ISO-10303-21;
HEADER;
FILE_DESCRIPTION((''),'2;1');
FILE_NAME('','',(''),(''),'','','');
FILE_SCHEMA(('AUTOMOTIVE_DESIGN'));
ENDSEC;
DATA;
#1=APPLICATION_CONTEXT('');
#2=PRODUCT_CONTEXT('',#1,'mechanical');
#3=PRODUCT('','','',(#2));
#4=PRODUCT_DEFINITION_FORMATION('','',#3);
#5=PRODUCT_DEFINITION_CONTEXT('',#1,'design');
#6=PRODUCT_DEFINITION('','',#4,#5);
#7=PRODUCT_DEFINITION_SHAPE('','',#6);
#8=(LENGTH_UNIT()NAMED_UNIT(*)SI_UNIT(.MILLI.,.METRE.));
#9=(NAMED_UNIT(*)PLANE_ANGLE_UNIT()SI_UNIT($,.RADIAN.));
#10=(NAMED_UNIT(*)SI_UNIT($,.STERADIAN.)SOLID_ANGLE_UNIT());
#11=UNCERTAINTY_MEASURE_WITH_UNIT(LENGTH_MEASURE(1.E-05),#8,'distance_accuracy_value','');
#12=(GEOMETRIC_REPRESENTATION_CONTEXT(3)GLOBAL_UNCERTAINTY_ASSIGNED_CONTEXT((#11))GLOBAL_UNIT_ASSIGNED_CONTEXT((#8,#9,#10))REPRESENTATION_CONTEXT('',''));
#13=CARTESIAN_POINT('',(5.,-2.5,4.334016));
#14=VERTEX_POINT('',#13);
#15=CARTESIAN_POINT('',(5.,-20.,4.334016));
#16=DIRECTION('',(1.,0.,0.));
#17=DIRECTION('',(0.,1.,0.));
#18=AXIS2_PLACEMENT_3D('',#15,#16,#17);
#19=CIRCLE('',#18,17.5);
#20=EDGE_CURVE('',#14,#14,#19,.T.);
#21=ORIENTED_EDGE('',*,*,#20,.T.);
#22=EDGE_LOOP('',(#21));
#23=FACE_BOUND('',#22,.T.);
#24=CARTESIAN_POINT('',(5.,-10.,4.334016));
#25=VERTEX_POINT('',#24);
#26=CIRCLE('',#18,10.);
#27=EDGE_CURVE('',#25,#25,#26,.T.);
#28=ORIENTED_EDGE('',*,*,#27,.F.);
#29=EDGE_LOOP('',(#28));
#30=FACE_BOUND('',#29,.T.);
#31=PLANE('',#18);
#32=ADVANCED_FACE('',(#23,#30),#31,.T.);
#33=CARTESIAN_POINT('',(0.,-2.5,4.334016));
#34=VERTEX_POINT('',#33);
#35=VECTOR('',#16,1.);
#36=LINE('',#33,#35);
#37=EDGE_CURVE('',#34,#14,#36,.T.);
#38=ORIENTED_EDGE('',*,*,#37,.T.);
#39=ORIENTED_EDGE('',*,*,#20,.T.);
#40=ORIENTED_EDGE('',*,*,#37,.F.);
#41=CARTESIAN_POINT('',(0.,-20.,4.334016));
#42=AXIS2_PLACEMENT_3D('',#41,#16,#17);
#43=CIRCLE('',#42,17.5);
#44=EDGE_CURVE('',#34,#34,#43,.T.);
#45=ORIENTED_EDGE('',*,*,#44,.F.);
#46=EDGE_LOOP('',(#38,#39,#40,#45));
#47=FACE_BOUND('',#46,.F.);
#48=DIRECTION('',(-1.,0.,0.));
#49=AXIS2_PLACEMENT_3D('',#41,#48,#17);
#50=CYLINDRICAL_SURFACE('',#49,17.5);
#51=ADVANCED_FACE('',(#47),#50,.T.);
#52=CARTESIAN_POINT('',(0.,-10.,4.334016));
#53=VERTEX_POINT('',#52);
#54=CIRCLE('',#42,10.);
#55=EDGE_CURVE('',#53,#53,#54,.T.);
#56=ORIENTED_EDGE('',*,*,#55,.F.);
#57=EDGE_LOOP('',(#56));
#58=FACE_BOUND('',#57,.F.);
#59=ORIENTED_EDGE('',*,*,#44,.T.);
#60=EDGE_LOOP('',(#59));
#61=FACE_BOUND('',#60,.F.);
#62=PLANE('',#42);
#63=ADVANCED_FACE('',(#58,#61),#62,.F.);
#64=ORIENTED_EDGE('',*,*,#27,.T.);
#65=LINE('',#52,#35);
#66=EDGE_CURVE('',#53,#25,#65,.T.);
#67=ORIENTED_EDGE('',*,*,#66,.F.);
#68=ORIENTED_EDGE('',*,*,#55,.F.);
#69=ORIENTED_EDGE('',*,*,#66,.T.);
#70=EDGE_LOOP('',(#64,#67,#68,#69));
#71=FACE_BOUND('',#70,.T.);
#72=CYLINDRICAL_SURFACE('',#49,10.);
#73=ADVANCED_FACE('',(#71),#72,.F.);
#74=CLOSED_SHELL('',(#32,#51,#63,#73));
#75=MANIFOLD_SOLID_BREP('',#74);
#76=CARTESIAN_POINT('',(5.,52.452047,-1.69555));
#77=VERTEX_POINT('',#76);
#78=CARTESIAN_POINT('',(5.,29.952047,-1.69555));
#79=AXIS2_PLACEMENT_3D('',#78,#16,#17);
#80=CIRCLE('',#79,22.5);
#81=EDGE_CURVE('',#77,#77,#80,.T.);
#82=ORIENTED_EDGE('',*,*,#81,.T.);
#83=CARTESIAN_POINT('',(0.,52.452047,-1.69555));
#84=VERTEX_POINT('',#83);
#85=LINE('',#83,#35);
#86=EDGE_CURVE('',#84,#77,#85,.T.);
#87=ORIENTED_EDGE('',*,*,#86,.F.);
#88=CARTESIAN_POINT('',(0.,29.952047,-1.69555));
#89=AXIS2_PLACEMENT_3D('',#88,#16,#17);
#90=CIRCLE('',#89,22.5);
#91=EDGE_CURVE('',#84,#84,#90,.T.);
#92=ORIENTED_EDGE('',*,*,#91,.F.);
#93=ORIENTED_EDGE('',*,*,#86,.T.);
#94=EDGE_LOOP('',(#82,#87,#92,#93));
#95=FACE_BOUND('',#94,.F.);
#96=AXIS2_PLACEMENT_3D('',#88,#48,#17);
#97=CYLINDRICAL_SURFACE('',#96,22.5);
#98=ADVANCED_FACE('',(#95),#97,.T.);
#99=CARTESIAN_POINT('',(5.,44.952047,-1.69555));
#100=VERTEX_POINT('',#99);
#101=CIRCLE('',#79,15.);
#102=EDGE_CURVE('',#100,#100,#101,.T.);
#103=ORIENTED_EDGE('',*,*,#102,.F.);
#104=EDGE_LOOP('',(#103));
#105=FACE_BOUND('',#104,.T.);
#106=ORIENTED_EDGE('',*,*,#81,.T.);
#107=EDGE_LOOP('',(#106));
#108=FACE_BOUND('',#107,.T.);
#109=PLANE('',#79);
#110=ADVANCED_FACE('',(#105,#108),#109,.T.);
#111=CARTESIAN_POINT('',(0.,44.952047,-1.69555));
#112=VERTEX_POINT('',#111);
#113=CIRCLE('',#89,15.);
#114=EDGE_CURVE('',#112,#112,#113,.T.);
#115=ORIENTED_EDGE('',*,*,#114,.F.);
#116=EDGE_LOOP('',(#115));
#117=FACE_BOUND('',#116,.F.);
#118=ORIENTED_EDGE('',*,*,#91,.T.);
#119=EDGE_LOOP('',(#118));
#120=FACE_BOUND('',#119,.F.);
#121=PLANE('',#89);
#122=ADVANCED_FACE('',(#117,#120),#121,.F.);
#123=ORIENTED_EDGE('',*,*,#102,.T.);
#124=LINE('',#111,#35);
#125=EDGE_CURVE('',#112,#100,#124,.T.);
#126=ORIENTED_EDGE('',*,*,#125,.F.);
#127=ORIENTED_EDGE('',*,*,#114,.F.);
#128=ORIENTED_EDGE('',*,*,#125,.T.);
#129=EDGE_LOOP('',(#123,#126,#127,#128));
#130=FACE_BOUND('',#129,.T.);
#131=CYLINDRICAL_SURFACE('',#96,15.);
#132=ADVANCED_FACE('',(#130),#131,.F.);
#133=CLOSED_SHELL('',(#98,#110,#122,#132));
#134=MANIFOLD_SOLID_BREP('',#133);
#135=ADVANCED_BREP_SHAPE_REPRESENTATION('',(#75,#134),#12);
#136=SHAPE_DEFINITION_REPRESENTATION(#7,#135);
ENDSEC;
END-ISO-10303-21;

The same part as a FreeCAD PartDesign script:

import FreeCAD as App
import Part
import Sketcher
from FreeCAD import Vector

doc = App.newDocument("Part")
body = doc.addObject("PartDesign::Body", "Body")
body.AllowCompound = True

sketch1 = doc.addObject("Sketcher::SketchObject", "Sketch")
body.addObject(sketch1)
sketch1.AttachmentSupport = (doc.YZ_Plane, [""])
sketch1.MapMode = "FlatFace"
sketch1.addGeometry(Part.Circle(Vector(-20, 4, 0), Vector(0, 0, 1), 18), False)
sketch1.addGeometry(Part.Circle(Vector(-20, 4, 0), Vector(0, 0, 1), 10), False)
sketch1.addGeometry(Part.Circle(Vector(30, -2, 0), Vector(0, 0, 1), 22), False)
sketch1.addGeometry(Part.Circle(Vector(30, -2, 0), Vector(0, 0, 1), 15), False)
sketch1.addConstraint(Sketcher.Constraint("Coincident", 1, 3, 0, 3))
sketch1.addConstraint(Sketcher.Constraint("Coincident", 3, 3, 2, 3))
sketch1.addConstraint(Sketcher.Constraint("Diameter", 0, 35.0))
sketch1.addConstraint(Sketcher.Constraint("Diameter", 1, 20.0))
sketch1.addConstraint(Sketcher.Constraint("Diameter", 2, 45.0))
sketch1.addConstraint(Sketcher.Constraint("Diameter", 3, 30.0))
sketch1.addConstraint(Sketcher.Constraint("DistanceX", 0, 3, -1, 1, 20.0))
sketch1.addConstraint(Sketcher.Constraint("DistanceY", 2, 3, -1, 1, 1.69555))
sketch1.addConstraint(Sketcher.Constraint("DistanceY", -1, 1, 0, 3, 4.334016))
sketch1.addConstraint(Sketcher.Constraint("DistanceX", -1, 1, 2, 3, 29.952047))
pad1 = doc.addObject("PartDesign::Pad", "Pad")
body.addObject(pad1)
pad1.Profile = sketch1
pad1.Length = 5

doc.recompute()
